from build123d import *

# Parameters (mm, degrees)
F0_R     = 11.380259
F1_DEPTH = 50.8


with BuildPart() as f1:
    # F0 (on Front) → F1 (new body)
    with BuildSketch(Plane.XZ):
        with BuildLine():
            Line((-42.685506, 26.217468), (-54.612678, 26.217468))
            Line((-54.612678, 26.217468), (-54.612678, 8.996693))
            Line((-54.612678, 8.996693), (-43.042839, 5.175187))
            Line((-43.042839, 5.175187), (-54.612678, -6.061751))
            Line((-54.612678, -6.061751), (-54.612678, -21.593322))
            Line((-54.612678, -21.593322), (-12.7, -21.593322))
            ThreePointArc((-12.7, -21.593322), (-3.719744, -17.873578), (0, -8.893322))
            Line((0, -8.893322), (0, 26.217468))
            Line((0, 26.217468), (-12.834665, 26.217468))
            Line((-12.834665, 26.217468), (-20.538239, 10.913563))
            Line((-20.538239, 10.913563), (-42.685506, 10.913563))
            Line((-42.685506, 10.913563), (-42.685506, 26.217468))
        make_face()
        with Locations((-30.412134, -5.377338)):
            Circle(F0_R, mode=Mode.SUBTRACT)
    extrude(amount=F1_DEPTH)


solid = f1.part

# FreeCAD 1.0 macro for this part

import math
import FreeCAD as App
import Part
import Sketcher
from FreeCAD import Vector
Q = App.Units.Quantity

doc = App.newDocument("Part")
body = doc.addObject("PartDesign::Body", "Body")

sketch1 = body.newObject("Sketcher::SketchObject", "Sketch")
sketch1.AttachmentSupport = (doc.getObject("XZ_Plane"), [""])
sketch1.MapMode = "FlatFace"
sketch1.addGeometry([
    Part.LineSegment(Vector(-43, 26, 0), Vector(-55, 26, 0)),
    Part.LineSegment(Vector(-55, 26, 0), Vector(-55, 9, 0)),
    Part.LineSegment(Vector(-55, 9, 0), Vector(-43, 5, 0)),
    Part.LineSegment(Vector(-43, 5, 0), Vector(-55, -6, 0)),
    Part.LineSegment(Vector(-55, -6, 0), Vector(-55, -22, 0)),
    Part.LineSegment(Vector(-55, -22, 0), Vector(-13, -22, 0)),
    Part.ArcOfCircle(Part.Circle(Vector(-13, -9, 0), Vector(0, 0, 1), 13), math.radians(-90), math.radians(0)),
    Part.LineSegment(Vector(0, -9, 0), Vector(0, 26, 0)),
    Part.LineSegment(Vector(0, 26, 0), Vector(-13, 26, 0)),
    Part.LineSegment(Vector(-13, 26, 0), Vector(-21, 11, 0)),
    Part.LineSegment(Vector(-21, 11, 0), Vector(-43, 11, 0)),
    Part.LineSegment(Vector(-43, 11, 0), Vector(-43, 26, 0)),
    Part.Circle(Vector(-30, -5, 0), Vector(0, 0, 1), 11),
], False)
sketch1.addConstraint([
    Sketcher.Constraint("Coincident", 0, 2, 1, 1),
    Sketcher.Constraint("Coincident", 1, 2, 2, 1),
    Sketcher.Constraint("Coincident", 2, 2, 3, 1),
    Sketcher.Constraint("Coincident", 3, 2, 4, 1),
    Sketcher.Constraint("Coincident", 4, 2, 5, 1),
    Sketcher.Constraint("Tangent", 5, 2, 6, 1),
    Sketcher.Constraint("Tangent", 6, 2, 7, 1),
    Sketcher.Constraint("Coincident", 7, 2, 8, 1),
    Sketcher.Constraint("Coincident", 8, 2, 9, 1),
    Sketcher.Constraint("Coincident", 9, 2, 10, 1),
    Sketcher.Constraint("Coincident", 10, 2, 11, 1),
    Sketcher.Constraint("Coincident", 11, 2, 0, 1),
    Sketcher.Constraint("Horizontal", 0),
    Sketcher.Constraint("Vertical", 1),
    Sketcher.Constraint("Vertical", 4),
    Sketcher.Constraint("Horizontal", 5),
    Sketcher.Constraint("Vertical", 7),
    Sketcher.Constraint("Horizontal", 8),
    Sketcher.Constraint("Horizontal", 10),
    Sketcher.Constraint("Vertical", 11),
    Sketcher.Constraint("PointOnObject", 6, 2, -2),
    Sketcher.Constraint("Horizontal", 0, 2, 7, 2),
    Sketcher.Constraint("Vertical", 1, 2, 3, 2),
    Sketcher.Constraint("Radius", 6, Q("0.5 in")),
    Sketcher.Constraint("Diameter", 12, 22.760518),
    Sketcher.Constraint("DistanceX", 2, 2, -1, 1, Q("1.6946 in")),
    Sketcher.Constraint("DistanceY", 4, 2, 4, 1, 15.531571),
    Sketcher.Constraint("DistanceY", 7, 1, 7, 2, 35.11079),
    Sketcher.Constraint("DistanceY", 12, 3, 9, 2, 16.290901),
    Sketcher.Constraint("DistanceX", 2, 2, 9, 2, 22.5046),
    Sketcher.Constraint("DistanceX", 0, 2, 0, 1, 11.927172),
    Sketcher.Constraint("DistanceX", 5, 1, 5, 2, 41.912678),
    Sketcher.Constraint("DistanceX", 8, 2, 8, 1, 12.834665),
    Sketcher.Constraint("DistanceY", 1, 2, 1, 1, 17.220775),
    Sketcher.Constraint("DistanceY", 11, 1, 11, 2, 15.303905),
    Sketcher.Constraint("DistanceY", 6, 3, -1, 1, 8.893322),
    Sketcher.Constraint("DistanceY", 2, 2, 0, 2, 21.042281),
    Sketcher.Constraint("DistanceX", 12, 3, 8, 2, 17.577469),
])
pad1 = body.newObject("PartDesign::Pad", "Pad")
pad1.Profile = sketch1
pad1.Length = Q("2 in")

doc.recompute()
